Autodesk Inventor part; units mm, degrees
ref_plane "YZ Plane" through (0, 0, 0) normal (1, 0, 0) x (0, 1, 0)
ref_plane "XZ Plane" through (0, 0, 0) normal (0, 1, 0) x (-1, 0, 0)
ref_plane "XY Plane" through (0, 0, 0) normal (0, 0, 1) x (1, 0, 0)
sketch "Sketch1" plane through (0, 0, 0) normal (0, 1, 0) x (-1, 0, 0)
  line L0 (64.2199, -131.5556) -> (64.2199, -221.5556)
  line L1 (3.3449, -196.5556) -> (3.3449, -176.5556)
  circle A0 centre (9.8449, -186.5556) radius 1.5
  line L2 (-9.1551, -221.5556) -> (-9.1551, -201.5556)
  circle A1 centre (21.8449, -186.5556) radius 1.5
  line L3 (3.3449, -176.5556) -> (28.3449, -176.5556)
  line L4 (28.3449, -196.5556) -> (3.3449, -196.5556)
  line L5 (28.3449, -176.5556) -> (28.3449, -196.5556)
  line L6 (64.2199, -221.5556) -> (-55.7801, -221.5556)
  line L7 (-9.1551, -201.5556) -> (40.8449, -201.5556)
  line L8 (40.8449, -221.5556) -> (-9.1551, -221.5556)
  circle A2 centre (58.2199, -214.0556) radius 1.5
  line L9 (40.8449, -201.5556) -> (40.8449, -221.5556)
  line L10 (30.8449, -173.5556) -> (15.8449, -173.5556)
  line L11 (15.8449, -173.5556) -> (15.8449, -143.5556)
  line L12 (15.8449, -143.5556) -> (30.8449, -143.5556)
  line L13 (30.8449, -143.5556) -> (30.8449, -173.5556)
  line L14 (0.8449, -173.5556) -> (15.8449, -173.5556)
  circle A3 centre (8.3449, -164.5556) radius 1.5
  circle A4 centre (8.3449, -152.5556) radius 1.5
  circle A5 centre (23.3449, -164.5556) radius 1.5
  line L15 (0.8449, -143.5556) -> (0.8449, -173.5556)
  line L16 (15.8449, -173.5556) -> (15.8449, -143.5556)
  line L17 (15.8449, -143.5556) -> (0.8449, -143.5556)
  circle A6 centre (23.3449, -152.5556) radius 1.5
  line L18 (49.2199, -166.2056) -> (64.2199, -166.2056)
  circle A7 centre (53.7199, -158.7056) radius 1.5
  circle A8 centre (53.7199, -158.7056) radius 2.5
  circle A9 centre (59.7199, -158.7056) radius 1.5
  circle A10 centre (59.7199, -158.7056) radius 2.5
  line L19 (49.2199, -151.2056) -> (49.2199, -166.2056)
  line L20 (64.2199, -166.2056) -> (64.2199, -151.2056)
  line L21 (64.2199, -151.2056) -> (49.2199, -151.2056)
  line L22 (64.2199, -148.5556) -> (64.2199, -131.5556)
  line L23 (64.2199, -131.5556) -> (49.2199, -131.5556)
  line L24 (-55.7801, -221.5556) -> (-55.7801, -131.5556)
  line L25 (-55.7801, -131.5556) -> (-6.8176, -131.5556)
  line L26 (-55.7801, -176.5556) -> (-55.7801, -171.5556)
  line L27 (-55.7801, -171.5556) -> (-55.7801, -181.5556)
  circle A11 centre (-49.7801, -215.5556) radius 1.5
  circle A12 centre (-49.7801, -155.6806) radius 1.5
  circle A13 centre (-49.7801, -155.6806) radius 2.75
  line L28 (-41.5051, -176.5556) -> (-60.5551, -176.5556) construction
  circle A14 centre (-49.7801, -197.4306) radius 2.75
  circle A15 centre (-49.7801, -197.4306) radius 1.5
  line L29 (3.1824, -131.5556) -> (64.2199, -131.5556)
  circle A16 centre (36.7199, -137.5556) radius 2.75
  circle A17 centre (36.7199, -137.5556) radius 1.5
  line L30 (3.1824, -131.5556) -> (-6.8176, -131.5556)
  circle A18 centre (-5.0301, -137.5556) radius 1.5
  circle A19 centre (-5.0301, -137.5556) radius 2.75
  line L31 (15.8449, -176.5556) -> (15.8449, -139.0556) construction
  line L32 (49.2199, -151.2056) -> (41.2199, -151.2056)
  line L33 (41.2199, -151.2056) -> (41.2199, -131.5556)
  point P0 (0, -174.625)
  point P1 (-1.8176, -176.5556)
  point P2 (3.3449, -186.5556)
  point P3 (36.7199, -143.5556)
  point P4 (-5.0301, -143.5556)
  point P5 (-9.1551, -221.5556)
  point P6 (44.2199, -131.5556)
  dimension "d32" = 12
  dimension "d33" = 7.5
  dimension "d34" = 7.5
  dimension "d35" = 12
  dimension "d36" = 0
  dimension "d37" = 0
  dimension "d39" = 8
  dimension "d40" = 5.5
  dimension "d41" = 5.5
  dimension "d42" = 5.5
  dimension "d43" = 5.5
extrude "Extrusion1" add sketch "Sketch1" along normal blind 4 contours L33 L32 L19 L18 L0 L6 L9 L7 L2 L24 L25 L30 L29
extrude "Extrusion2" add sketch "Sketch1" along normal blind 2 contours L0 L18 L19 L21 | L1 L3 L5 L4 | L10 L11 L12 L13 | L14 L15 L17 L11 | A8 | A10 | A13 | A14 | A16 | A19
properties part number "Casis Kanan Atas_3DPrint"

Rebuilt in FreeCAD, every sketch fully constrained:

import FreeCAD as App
import Part
import Sketcher

V = App.Vector


def add_polygon(sketch, points):
    """Adds a closed chain of lines whose ends are joined by coincident constraints."""
    first, n = sketch.GeometryCount, len(points)
    for a, b in zip(points, points[1:] + points[:1]):
        sketch.addGeometry(Part.LineSegment(App.Vector(*a, 0), App.Vector(*b, 0)), False)
    for i in range(n):
        sketch.addConstraint(Sketcher.Constraint("Coincident", first + i, 2, first + (i + 1) % n, 1))

doc = App.newDocument("Part")
body = doc.addObject("PartDesign::Body", "Body")

# Sketch on XZ plane
sketch1 = body.newObject("Sketcher::SketchObject", "Sketch")
sketch1.AttachmentSupport = (doc.getObject("XZ_Plane"), [""])
sketch1.MapMode = "FlatFace"
add_polygon(sketch1, [(-41.2, -151.2), (-41.2, -131.6), (55.8, -131.6), (55.8, -221.6), (9.2, -221.6), (9.2, -201.6), (-40.8, -201.6), (-40.8, -221.6), (-64.2, -221.6), (-64.2, -166.2), (-49.2, -166.2), (-49.2, -151.2)])  # lines 0-11
sketch1.addGeometry(Part.Circle(V(49.8, -215.6, 0), V(0, 0, 1), 1.5), False)  # 12
sketch1.addGeometry(Part.Circle(V(49.8, -197.4, 0), V(0, 0, 1), 2.8), False)  # 13
sketch1.addGeometry(Part.Circle(V(-58.2, -214.1, 0), V(0, 0, 1), 1.5), False)  # 14
add_polygon(sketch1, [(-28.3, -196.6), (-3.3, -196.6), (-3.3, -176.6), (-28.3, -176.6)])  # lines 15-18
sketch1.addGeometry(Part.Circle(V(49.8, -155.7, 0), V(0, 0, 1), 2.8), False)  # 19
sketch1.addGeometry(Part.Circle(V(5, -137.6, 0), V(0, 0, 1), 2.8), False)  # 20
add_polygon(sketch1, [(-30.8, -143.6), (-30.8, -173.6), (-0.8, -173.6), (-0.8, -143.6)])  # lines 21-24
sketch1.addGeometry(Part.Circle(V(-36.7, -137.6, 0), V(0, 0, 1), 2.8), False)  # 25
sketch1.addConstraint(Sketcher.Constraint("Vertical", 0))
sketch1.addConstraint(Sketcher.Constraint("Horizontal", 1))
sketch1.addConstraint(Sketcher.Constraint("Vertical", 2))
sketch1.addConstraint(Sketcher.Constraint("Horizontal", 3))
sketch1.addConstraint(Sketcher.Constraint("Vertical", 4))
sketch1.addConstraint(Sketcher.Constraint("Horizontal", 5))
sketch1.addConstraint(Sketcher.Constraint("Vertical", 6))
sketch1.addConstraint(Sketcher.Constraint("Horizontal", 7))
sketch1.addConstraint(Sketcher.Constraint("Vertical", 8))
sketch1.addConstraint(Sketcher.Constraint("Horizontal", 9))
sketch1.addConstraint(Sketcher.Constraint("Vertical", 10))
sketch1.addConstraint(Sketcher.Constraint("Horizontal", 11))
sketch1.addConstraint(Sketcher.Constraint("Horizontal", 15))
sketch1.addConstraint(Sketcher.Constraint("Vertical", 16))
sketch1.addConstraint(Sketcher.Constraint("Horizontal", 17))
sketch1.addConstraint(Sketcher.Constraint("Vertical", 18))
sketch1.addConstraint(Sketcher.Constraint("Vertical", 21))
sketch1.addConstraint(Sketcher.Constraint("Horizontal", 22))
sketch1.addConstraint(Sketcher.Constraint("Vertical", 23))
sketch1.addConstraint(Sketcher.Constraint("Horizontal", 24))
sketch1.addConstraint(Sketcher.Constraint("Equal", 12, 14))
sketch1.addConstraint(Sketcher.Constraint("Equal", 13, 19))
sketch1.addConstraint(Sketcher.Constraint("Equal", 19, 20))
sketch1.addConstraint(Sketcher.Constraint("Equal", 20, 25))
sketch1.addConstraint(Sketcher.Constraint("Horizontal", 20, 3, 25, 3))
sketch1.addConstraint(Sketcher.Constraint("Horizontal", 3, 2, 6, 2))
sketch1.addConstraint(Sketcher.Constraint("Vertical", 12, 3, 13, 3))
sketch1.addConstraint(Sketcher.Constraint("Vertical", 13, 3, 19, 3))
sketch1.addConstraint(Sketcher.Constraint("Equal", 9, 10))
sketch1.addConstraint(Sketcher.Constraint("Equal", 6, 16))
sketch1.addConstraint(Sketcher.Constraint("Equal", 24, 21))
sketch1.addConstraint(Sketcher.Constraint("Diameter", 13, 5.5))
sketch1.addConstraint(Sketcher.Constraint("DistanceX", 11, 1, 11, 2, 8.0))
sketch1.addConstraint(Sketcher.Constraint("Diameter", 12, 3.0))
sketch1.addConstraint(Sketcher.Constraint("DistanceY", 24, 2, 0, 2, 12.0))
sketch1.addConstraint(Sketcher.Constraint("DistanceY", 3, 2, 14, 3, 7.5))
sketch1.addConstraint(Sketcher.Constraint("DistanceX", 1, 1, 1, 2, 97.0))
sketch1.addConstraint(Sketcher.Constraint("DistanceX", 5, 2, 5, 1, 50.0))
sketch1.addConstraint(Sketcher.Constraint("DistanceX", 9, 1, 9, 2, 15.0))
sketch1.addConstraint(Sketcher.Constraint("DistanceX", 15, 1, 15, 2, 25.0))
sketch1.addConstraint(Sketcher.Constraint("DistanceX", 22, 1, 22, 2, 30.0))
sketch1.addConstraint(Sketcher.Constraint("DistanceY", 2, 2, 2, 1, 90.0))
sketch1.addConstraint(Sketcher.Constraint("DistanceY", 4, 1, 4, 2, 20.0))
sketch1.addConstraint(Sketcher.Constraint("DistanceX", 14, 3, 12, 3, 108.0))
sketch1.addConstraint(Sketcher.Constraint("DistanceY", 12, 3, 20, 3, 78.0))
sketch1.addConstraint(Sketcher.Constraint("DistanceY", 25, 3, 0, 2, 6.0))
sketch1.addConstraint(Sketcher.Constraint("DistanceX", 14, 3, 0, 2, 17.0))
sketch1.addConstraint(Sketcher.Constraint("DistanceY", 4, 2, 15, 2, 5.0))
sketch1.addConstraint(Sketcher.Constraint("DistanceX", 22, 2, 4, 2, 10.0))
sketch1.addConstraint(Sketcher.Constraint("DistanceY", 0, 1, 0, 2, 19.65))
sketch1.addConstraint(Sketcher.Constraint("DistanceX", 14, 3, 25, 3, 21.5))
sketch1.addConstraint(Sketcher.Constraint("DistanceX", 15, 2, 4, 2, 12.5))
sketch1.addConstraint(Sketcher.Constraint("DistanceX", 3, 2, 3, 1, 46.625))
sketch1.addConstraint(Sketcher.Constraint("DistanceX", -1, 1, 12, 3, 49.78))
sketch1.addConstraint(Sketcher.Constraint("DistanceX", -1, 1, 20, 3, 5.03))
sketch1.addConstraint(Sketcher.Constraint("DistanceY", 13, 3, 19, 3, 41.75))
sketch1.addConstraint(Sketcher.Constraint("DistanceY", 12, 3, 13, 3, 18.125))
sketch1.addConstraint(Sketcher.Constraint("DistanceY", 12, 3, -1, 1, 215.5556))
pad1 = body.newObject("PartDesign::Pad", "Pad")
pad1.Profile = sketch1
pad1.Length = 4
pad1.Reversed = True

# Sketch on XZ plane
sketch2 = body.newObject("Sketcher::SketchObject", "Sketch001")
sketch2.AttachmentSupport = (doc.getObject("XZ_Plane"), [""])
sketch2.MapMode = "FlatFace"
add_polygon(sketch2, [(-64.2, -166.2), (-64.2, -151.2), (-49.2, -151.2), (-49.2, -166.2)])  # lines 0-3
sketch2.addGeometry(Part.Circle(V(-53.7, -158.7, 0), V(0, 0, 1), 1.5), False)  # 4
sketch2.addGeometry(Part.Circle(V(-59.7, -158.7, 0), V(0, 0, 1), 1.5), False)  # 5
add_polygon(sketch2, [(-3.3, -176.6), (-3.3, -196.6), (-28.3, -196.6), (-28.3, -176.6)])  # lines 6-9
sketch2.addGeometry(Part.Circle(V(-9.8, -186.6, 0), V(0, 0, 1), 1.5), False)  # 10
sketch2.addGeometry(Part.Circle(V(-21.8, -186.6, 0), V(0, 0, 1), 1.5), False)  # 11
add_polygon(sketch2, [(-30.8, -173.6), (-30.8, -143.6), (-0.8, -143.6), (-0.8, -173.6)])  # lines 12-15
sketch2.addGeometry(Part.Circle(V(-23.3, -164.6, 0), V(0, 0, 1), 1.5), False)  # 16
sketch2.addGeometry(Part.Circle(V(-23.3, -152.6, 0), V(0, 0, 1), 1.5), False)  # 17
sketch2.addGeometry(Part.Circle(V(-8.3, -152.6, 0), V(0, 0, 1), 1.5), False)  # 18
sketch2.addGeometry(Part.Circle(V(-8.3, -164.6, 0), V(0, 0, 1), 1.5), False)  # 19
sketch2.addGeometry(Part.Circle(V(49.8, -155.7, 0), V(0, 0, 1), 2.8), False)  # 20
sketch2.addGeometry(Part.Circle(V(49.8, -155.7, 0), V(0, 0, 1), 1.5), False)  # 21
sketch2.addGeometry(Part.Circle(V(49.8, -197.4, 0), V(0, 0, 1), 2.8), False)  # 22
sketch2.addGeometry(Part.Circle(V(49.8, -197.4, 0), V(0, 0, 1), 1.5), False)  # 23
sketch2.addGeometry(Part.Circle(V(-36.7, -137.6, 0), V(0, 0, 1), 2.8), False)  # 24
sketch2.addGeometry(Part.Circle(V(-36.7, -137.6, 0), V(0, 0, 1), 1.5), False)  # 25
sketch2.addGeometry(Part.Circle(V(5, -137.6, 0), V(0, 0, 1), 2.8), False)  # 26
sketch2.addGeometry(Part.Circle(V(5, -137.6, 0), V(0, 0, 1), 1.5), False)  # 27
sketch2.addConstraint(Sketcher.Constraint("Vertical", 0))
sketch2.addConstraint(Sketcher.Constraint("Horizontal", 1))
sketch2.addConstraint(Sketcher.Constraint("Vertical", 2))
sketch2.addConstraint(Sketcher.Constraint("Horizontal", 3))
sketch2.addConstraint(Sketcher.Constraint("Vertical", 6))
sketch2.addConstraint(Sketcher.Constraint("Horizontal", 7))
sketch2.addConstraint(Sketcher.Constraint("Vertical", 8))
sketch2.addConstraint(Sketcher.Constraint("Horizontal", 9))
sketch2.addConstraint(Sketcher.Constraint("Vertical", 12))
sketch2.addConstraint(Sketcher.Constraint("Horizontal", 13))
sketch2.addConstraint(Sketcher.Constraint("Vertical", 14))
sketch2.addConstraint(Sketcher.Constraint("Horizontal", 15))
sketch2.addConstraint(Sketcher.Constraint("Coincident", 21, 3, 20, 3))
sketch2.addConstraint(Sketcher.Constraint("Coincident", 23, 3, 22, 3))
sketch2.addConstraint(Sketcher.Constraint("Coincident", 25, 3, 24, 3))
sketch2.addConstraint(Sketcher.Constraint("Coincident", 27, 3, 26, 3))
sketch2.addConstraint(Sketcher.Constraint("Equal", 4, 5))
sketch2.addConstraint(Sketcher.Constraint("Equal", 5, 10))
sketch2.addConstraint(Sketcher.Constraint("Equal", 10, 11))
sketch2.addConstraint(Sketcher.Constraint("Equal", 11, 16))
sketch2.addConstraint(Sketcher.Constraint("Equal", 16, 17))
sketch2.addConstraint(Sketcher.Constraint("Equal", 17, 18))
sketch2.addConstraint(Sketcher.Constraint("Equal", 18, 19))
sketch2.addConstraint(Sketcher.Constraint("Equal", 19, 21))
sketch2.addConstraint(Sketcher.Constraint("Equal", 20, 22))
sketch2.addConstraint(Sketcher.Constraint("Equal", 21, 23))
sketch2.addConstraint(Sketcher.Constraint("Equal", 22, 24))
sketch2.addConstraint(Sketcher.Constraint("Equal", 23, 25))
sketch2.addConstraint(Sketcher.Constraint("Equal", 24, 26))
sketch2.addConstraint(Sketcher.Constraint("Equal", 25, 27))
sketch2.addConstraint(Sketcher.Constraint("Horizontal", 4, 3, 5, 3))
sketch2.addConstraint(Sketcher.Constraint("Horizontal", 10, 3, 11, 3))
sketch2.addConstraint(Sketcher.Constraint("Horizontal", 17, 3, 18, 3))
sketch2.addConstraint(Sketcher.Constraint("Horizontal", 16, 3, 19, 3))
sketch2.addConstraint(Sketcher.Constraint("Horizontal", 25, 3, 26, 3))
sketch2.addConstraint(Sketcher.Constraint("Vertical", 16, 3, 17, 3))
sketch2.addConstraint(Sketcher.Constraint("Vertical", 18, 3, 19, 3))
sketch2.addConstraint(Sketcher.Constraint("Vertical", 21, 3, 22, 3))
sketch2.addConstraint(Sketcher.Constraint("Equal", 3, 0))
sketch2.addConstraint(Sketcher.Constraint("Equal", 15, 12))
sketch2.addConstraint(Sketcher.Constraint("Diameter", 20, 5.5))
sketch2.addConstraint(Sketcher.Constraint("Diameter", 4, 3.0))
sketch2.addConstraint(Sketcher.Constraint("DistanceX", 11, 3, 10, 3, 12.0))
sketch2.addConstraint(Sketcher.Constraint("DistanceY", 16, 3, 17, 3, 12.0))
sketch2.addConstraint(Sketcher.Constraint("DistanceY", 8, 2, 16, 3, 12.0))
sketch2.addConstraint(Sketcher.Constraint("DistanceY", 5, 3, 0, 2, 7.5))
sketch2.addConstraint(Sketcher.Constraint("DistanceY", 2, 2, 4, 3, 7.5))
sketch2.addConstraint(Sketcher.Constraint("DistanceX", 12, 2, 17, 3, 7.5))
sketch2.addConstraint(Sketcher.Constraint("DistanceX", 18, 3, 13, 2, 7.5))
sketch2.addConstraint(Sketcher.Constraint("DistanceX", 7, 2, 7, 1, 25.0))
sketch2.addConstraint(Sketcher.Constraint("DistanceX", 13, 1, 13, 2, 30.0))
sketch2.addConstraint(Sketcher.Constraint("DistanceY", 6, 2, 6, 1, 20.0))
sketch2.addConstraint(Sketcher.Constraint("DistanceX", 5, 3, 4, 3, 6.0))
sketch2.addConstraint(Sketcher.Constraint("DistanceY", 11, 3, 16, 3, 22.0))
sketch2.addConstraint(Sketcher.Constraint("DistanceY", 17, 3, 24, 3, 15.0))
sketch2.addConstraint(Sketcher.Constraint("DistanceX", 4, 3, 24, 3, 17.0))
sketch2.addConstraint(Sketcher.Constraint("DistanceX", 19, 3, 6, 2, 5.0))
sketch2.addConstraint(Sketcher.Constraint("DistanceY", 12, 2, 24, 3, 6.0))
sketch2.addConstraint(Sketcher.Constraint("DistanceX", 10, 3, 14, 2, 9.0))
sketch2.addConstraint(Sketcher.Constraint("DistanceX", 0, 2, 5, 3, 4.5))
sketch2.addConstraint(Sketcher.Constraint("DistanceX", 4, 3, -1, 1, 53.72))
sketch2.addConstraint(Sketcher.Constraint("DistanceX", -1, 1, 20, 3, 49.78))
sketch2.addConstraint(Sketcher.Constraint("DistanceX", -1, 1, 26, 3, 5.03))
sketch2.addConstraint(Sketcher.Constraint("DistanceY", 10, 3, 4, 3, 27.85))
sketch2.addConstraint(Sketcher.Constraint("DistanceY", 22, 3, 20, 3, 41.75))
sketch2.addConstraint(Sketcher.Constraint("DistanceX", 10, 3, -1, 1, 9.845))
sketch2.addConstraint(Sketcher.Constraint("DistanceY", 20, 3, 18, 3, 3.125))
sketch2.addConstraint(Sketcher.Constraint("DistanceY", 4, 3, -1, 1, 158.7056))
pad2 = body.newObject("PartDesign::Pad", "Pad001")
pad2.Profile = sketch2
pad2.Length = 2
pad2.Reversed = True

doc.recompute()
